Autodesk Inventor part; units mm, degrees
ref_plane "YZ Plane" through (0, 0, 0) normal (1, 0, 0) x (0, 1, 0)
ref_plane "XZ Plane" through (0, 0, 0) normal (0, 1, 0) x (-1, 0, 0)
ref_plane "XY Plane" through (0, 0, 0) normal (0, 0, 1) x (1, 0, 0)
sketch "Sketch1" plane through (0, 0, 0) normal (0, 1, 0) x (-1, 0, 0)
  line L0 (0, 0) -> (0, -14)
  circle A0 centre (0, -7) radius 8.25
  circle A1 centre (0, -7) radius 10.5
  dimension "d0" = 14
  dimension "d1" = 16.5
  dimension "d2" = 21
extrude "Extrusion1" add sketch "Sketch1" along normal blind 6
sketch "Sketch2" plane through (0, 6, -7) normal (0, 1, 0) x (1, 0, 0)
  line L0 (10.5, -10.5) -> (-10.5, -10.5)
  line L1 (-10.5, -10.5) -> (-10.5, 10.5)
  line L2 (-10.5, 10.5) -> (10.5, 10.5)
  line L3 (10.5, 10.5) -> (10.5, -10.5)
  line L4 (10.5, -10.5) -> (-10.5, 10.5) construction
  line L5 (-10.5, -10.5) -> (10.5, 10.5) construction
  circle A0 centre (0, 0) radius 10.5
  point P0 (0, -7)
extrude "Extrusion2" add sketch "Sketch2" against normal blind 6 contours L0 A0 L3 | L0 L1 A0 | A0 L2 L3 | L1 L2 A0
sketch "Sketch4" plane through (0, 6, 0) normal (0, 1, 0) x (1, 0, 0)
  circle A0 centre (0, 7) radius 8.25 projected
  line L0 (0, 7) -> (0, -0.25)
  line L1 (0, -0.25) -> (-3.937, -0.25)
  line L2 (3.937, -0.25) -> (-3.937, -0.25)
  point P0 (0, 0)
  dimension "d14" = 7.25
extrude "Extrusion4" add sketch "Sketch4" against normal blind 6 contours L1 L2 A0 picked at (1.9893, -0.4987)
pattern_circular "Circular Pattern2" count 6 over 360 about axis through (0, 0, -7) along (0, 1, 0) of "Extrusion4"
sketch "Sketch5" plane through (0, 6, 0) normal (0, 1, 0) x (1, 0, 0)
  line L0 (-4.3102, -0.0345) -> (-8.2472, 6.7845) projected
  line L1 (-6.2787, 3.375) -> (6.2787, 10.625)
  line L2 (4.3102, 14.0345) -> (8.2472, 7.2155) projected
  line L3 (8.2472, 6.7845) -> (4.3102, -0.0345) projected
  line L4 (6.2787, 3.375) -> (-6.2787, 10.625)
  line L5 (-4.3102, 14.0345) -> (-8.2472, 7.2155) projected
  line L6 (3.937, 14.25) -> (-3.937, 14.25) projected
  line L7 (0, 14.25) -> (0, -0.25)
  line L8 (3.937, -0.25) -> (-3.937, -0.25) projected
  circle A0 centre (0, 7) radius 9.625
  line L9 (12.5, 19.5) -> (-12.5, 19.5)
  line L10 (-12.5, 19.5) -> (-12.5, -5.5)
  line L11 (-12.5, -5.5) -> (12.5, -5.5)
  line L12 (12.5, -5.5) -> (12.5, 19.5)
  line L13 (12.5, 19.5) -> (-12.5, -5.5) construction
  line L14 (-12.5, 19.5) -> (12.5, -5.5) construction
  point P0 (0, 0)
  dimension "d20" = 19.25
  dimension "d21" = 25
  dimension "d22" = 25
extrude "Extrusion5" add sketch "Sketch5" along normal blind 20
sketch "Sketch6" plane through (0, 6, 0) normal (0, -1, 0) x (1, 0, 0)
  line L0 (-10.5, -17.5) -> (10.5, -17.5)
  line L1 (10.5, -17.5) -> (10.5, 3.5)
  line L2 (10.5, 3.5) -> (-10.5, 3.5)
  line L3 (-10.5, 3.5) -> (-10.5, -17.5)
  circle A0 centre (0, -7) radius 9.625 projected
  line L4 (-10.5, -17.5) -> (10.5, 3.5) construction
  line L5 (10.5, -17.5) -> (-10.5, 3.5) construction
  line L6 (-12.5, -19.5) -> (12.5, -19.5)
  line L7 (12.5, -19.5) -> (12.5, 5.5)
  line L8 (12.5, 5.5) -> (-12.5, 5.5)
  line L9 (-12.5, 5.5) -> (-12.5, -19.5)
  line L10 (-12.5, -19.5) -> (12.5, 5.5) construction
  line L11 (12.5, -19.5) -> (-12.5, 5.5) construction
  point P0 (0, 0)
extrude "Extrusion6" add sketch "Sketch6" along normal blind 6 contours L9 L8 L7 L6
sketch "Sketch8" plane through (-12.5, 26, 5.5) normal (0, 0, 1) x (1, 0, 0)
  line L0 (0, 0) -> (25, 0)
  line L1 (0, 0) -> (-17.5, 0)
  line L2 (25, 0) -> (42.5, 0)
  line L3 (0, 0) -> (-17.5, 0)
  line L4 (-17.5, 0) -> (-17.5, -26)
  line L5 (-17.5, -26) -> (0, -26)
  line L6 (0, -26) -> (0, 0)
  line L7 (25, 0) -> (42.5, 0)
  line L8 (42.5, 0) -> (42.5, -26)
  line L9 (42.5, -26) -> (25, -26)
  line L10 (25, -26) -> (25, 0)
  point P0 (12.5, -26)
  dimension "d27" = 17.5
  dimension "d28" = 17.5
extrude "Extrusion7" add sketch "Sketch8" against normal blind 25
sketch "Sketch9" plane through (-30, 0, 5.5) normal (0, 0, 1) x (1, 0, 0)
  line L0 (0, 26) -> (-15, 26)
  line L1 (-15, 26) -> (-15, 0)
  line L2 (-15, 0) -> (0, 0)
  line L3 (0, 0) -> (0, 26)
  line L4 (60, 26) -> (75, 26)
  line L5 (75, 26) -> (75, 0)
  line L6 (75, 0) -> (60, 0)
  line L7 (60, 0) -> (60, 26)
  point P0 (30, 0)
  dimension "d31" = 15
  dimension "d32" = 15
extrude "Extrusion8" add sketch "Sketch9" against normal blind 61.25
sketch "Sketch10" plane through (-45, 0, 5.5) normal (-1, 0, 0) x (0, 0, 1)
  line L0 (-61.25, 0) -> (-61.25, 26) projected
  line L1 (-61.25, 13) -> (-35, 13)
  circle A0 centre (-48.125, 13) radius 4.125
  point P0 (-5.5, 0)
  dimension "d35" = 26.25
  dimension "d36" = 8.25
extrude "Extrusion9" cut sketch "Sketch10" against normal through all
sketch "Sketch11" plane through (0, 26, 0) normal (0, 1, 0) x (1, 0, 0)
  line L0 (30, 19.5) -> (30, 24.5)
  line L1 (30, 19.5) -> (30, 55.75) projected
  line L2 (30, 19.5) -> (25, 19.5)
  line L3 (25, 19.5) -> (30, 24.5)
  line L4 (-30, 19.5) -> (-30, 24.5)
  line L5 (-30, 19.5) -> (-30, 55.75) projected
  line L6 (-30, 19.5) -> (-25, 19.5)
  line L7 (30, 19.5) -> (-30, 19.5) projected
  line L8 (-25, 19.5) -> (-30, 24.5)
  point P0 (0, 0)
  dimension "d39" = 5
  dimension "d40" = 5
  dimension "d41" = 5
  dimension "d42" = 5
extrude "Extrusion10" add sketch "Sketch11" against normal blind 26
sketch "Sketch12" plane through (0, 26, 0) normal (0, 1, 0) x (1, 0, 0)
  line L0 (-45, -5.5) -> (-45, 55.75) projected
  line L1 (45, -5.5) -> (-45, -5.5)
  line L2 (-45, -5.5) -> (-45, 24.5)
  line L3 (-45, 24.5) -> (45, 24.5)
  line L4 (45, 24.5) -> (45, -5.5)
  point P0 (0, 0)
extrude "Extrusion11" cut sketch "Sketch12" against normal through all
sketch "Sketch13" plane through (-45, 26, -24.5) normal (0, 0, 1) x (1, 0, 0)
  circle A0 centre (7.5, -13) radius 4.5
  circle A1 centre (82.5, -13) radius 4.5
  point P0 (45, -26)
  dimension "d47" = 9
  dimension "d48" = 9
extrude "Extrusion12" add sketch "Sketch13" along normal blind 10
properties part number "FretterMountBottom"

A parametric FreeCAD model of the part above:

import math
import FreeCAD as App
import Part
import Sketcher
from FreeCAD import Vector
Q = App.Units.Quantity


def add_polygon(sketch, points):
    """Adds a closed chain of lines whose ends are joined by coincident constraints."""
    first, n = sketch.GeometryCount, len(points)
    for a, b in zip(points, points[1:] + points[:1]):
        sketch.addGeometry(Part.LineSegment(App.Vector(*a, 0), App.Vector(*b, 0)), False)
    for i in range(n):
        sketch.addConstraint(Sketcher.Constraint("Coincident", first + i, 2, first + (i + 1) % n, 1))

doc = App.newDocument("Part")
body = doc.addObject("PartDesign::Body", "Body")
body.AllowCompound = True

# Sketch on XZ plane
sketch1 = body.newObject("Sketcher::SketchObject", "Sketch")
sketch1.AttachmentSupport = (doc.getObject("XZ_Plane"), [""])
sketch1.MapMode = "FlatFace"
sketch1.addGeometry(Part.Circle(Vector(0, -7, 0), Vector(0, 0, 1), 10), False)
sketch1.addGeometry(Part.Circle(Vector(0, -7, 0), Vector(0, 0, 1), 8), False)
sketch1.addConstraint(Sketcher.Constraint("Coincident", 1, 3, 0, 3))
sketch1.addConstraint(Sketcher.Constraint("PointOnObject", 0, 3, -2))
sketch1.addConstraint(Sketcher.Constraint("Diameter", 0, Q("21 mm")))
sketch1.addConstraint(Sketcher.Constraint("Diameter", 1, Q("16.5 mm")))
sketch1.addConstraint(Sketcher.Constraint("DistanceY", 0, 3, -1, 1, Q("7 mm")))
pad1 = body.newObject("PartDesign::Pad", "Pad")
pad1.Profile = sketch1
pad1.Length = 6
pad1.Reversed = True

# Sketch on XZ plane
sketch2 = body.newObject("Sketcher::SketchObject", "Sketch001")
sketch2.AttachmentSupport = (doc.getObject("XZ_Plane"), [""])
sketch2.MapMode = "FlatFace"
sketch2.AttachmentOffset = App.Placement(Vector(0, 0, -6), App.Rotation())
sketch2.addGeometry(Part.LineSegment(Vector(0, 4, 0), Vector(10, 4, 0)), False)
sketch2.addGeometry(Part.LineSegment(Vector(10, 4, 0), Vector(10, -7, 0)), False)
sketch2.addGeometry(Part.ArcOfCircle(Part.Circle(Vector(0, -7, 0), Vector(0, 0, 1), 10), math.radians(0), math.radians(90)), False)
sketch2.addGeometry(Part.LineSegment(Vector(-10, 4, 0), Vector(0, 4, 0)), False)
sketch2.addGeometry(Part.ArcOfCircle(Part.Circle(Vector(0, -7, 0), Vector(0, 0, 1), 10), math.radians(90), math.radians(180)), False)
sketch2.addGeometry(Part.LineSegment(Vector(-10, -7, 0), Vector(-10, 4, 0)), False)
sketch2.addGeometry(Part.ArcOfCircle(Part.Circle(Vector(0, -7, 0), Vector(0, 0, 1), 10), math.radians(-90), math.radians(0)), False)
sketch2.addGeometry(Part.LineSegment(Vector(10, -7, 0), Vector(10, -18, 0)), False)
sketch2.addGeometry(Part.LineSegment(Vector(10, -18, 0), Vector(0, -18, 0)), False)
sketch2.addGeometry(Part.LineSegment(Vector(-10, -18, 0), Vector(-10, -7, 0)), False)
sketch2.addGeometry(Part.ArcOfCircle(Part.Circle(Vector(0, -7, 0), Vector(0, 0, 1), 10), math.radians(-180), math.radians(-90)), False)
sketch2.addGeometry(Part.LineSegment(Vector(0, -18, 0), Vector(-10, -18, 0)), False)
sketch2.addConstraint(Sketcher.Constraint("Coincident", 0, 2, 1, 1))
sketch2.addConstraint(Sketcher.Constraint("Tangent", 1, 2, 2, 1))
sketch2.addConstraint(Sketcher.Constraint("Tangent", 2, 2, 0, 1))
sketch2.addConstraint(Sketcher.Constraint("Tangent", 3, 2, 4, 1))
sketch2.addConstraint(Sketcher.Constraint("Tangent", 4, 2, 5, 1))
sketch2.addConstraint(Sketcher.Constraint("Coincident", 5, 2, 3, 1))
sketch2.addConstraint(Sketcher.Constraint("Tangent", 6, 2, 7, 1))
sketch2.addConstraint(Sketcher.Constraint("Coincident", 7, 2, 8, 1))
sketch2.addConstraint(Sketcher.Constraint("Tangent", 8, 2, 6, 1))
sketch2.addConstraint(Sketcher.Constraint("Tangent", 9, 2, 10, 1))
sketch2.addConstraint(Sketcher.Constraint("Tangent", 10, 2, 11, 1))
sketch2.addConstraint(Sketcher.Constraint("Coincident", 11, 2, 9, 1))
sketch2.addConstraint(Sketcher.Constraint("Horizontal", 0))
sketch2.addConstraint(Sketcher.Constraint("Vertical", 1))
sketch2.addConstraint(Sketcher.Constraint("Horizontal", 3))
sketch2.addConstraint(Sketcher.Constraint("Vertical", 5))
sketch2.addConstraint(Sketcher.Constraint("Vertical", 7))
sketch2.addConstraint(Sketcher.Constraint("Horizontal", 8))
sketch2.addConstraint(Sketcher.Constraint("Vertical", 9))
sketch2.addConstraint(Sketcher.Constraint("Horizontal", 11))
sketch2.addConstraint(Sketcher.Constraint("Coincident", 4, 3, 2, 3))
sketch2.addConstraint(Sketcher.Constraint("Coincident", 6, 3, 2, 3))
sketch2.addConstraint(Sketcher.Constraint("Coincident", 10, 3, 2, 3))
sketch2.addConstraint(Sketcher.Constraint("Equal", 2, 4))
sketch2.addConstraint(Sketcher.Constraint("Equal", 4, 6))
sketch2.addConstraint(Sketcher.Constraint("Equal", 6, 10))
sketch2.addConstraint(Sketcher.Constraint("PointOnObject", 2, 3, -2))
sketch2.addConstraint(Sketcher.Constraint("Radius", 2, Q("10.5 mm")))
sketch2.addConstraint(Sketcher.Constraint("DistanceY", 2, 3, -1, 1, Q("7 mm")))
pad2 = body.newObject("PartDesign::Pad", "Pad001")
pad2.Profile = sketch2
pad2.Length = 6

# Sketch on XZ plane
sketch3 = body.newObject("Sketcher::SketchObject", "Sketch002")
sketch3.AttachmentSupport = (doc.getObject("XZ_Plane"), [""])
sketch3.MapMode = "FlatFace"
sketch3.AttachmentOffset = App.Placement(Vector(0, 0, -6), App.Rotation())
sketch3.addGeometry(Part.LineSegment(Vector(4, 0, 0), Vector(-4, 0, 0)), False)
sketch3.addGeometry(Part.ArcOfCircle(Part.Circle(Vector(0, -7, 0), Vector(0, 0, 1), 8), math.radians(61), math.radians(119)), False)
sketch3.addConstraint(Sketcher.Constraint("Coincident", 0, 1, 1, 1))
sketch3.addConstraint(Sketcher.Constraint("Coincident", 1, 2, 0, 2))
sketch3.addConstraint(Sketcher.Constraint("Horizontal", 0))
sketch3.addConstraint(Sketcher.Constraint("PointOnObject", 1, 3, -2))
sketch3.addConstraint(Sketcher.Constraint("Radius", 1, Q("8.25 mm")))
sketch3.addConstraint(Sketcher.Constraint("DistanceY", 1, 3, 0, 1, Q("7.25 mm")))
sketch3.addConstraint(Sketcher.Constraint("DistanceY", 1, 3, -1, 1, Q("7 mm")))
pad3 = body.newObject("PartDesign::Pad", "Pad002")
pad3.Profile = sketch3
pad3.Length = 6
doc.recompute()

datumline = body.newObject("PartDesign::Line", "DatumLine")
datumline.Placement = App.Placement(Vector(0, 0, -7), App.Rotation(Vector(0, 0, 1), Vector(0, 1, 0)))
polarpattern = body.newObject("PartDesign::PolarPattern", "PolarPattern")
polarpattern.Originals = [pad3]
polarpattern.Axis = (datumline, [""])
polarpattern.Angle = 360
polarpattern.Occurrences = 6
body.Tip = polarpattern

# Sketch on XZ plane
sketch4 = body.newObject("Sketcher::SketchObject", "Sketch003")
sketch4.AttachmentSupport = (doc.getObject("XZ_Plane"), [""])
sketch4.MapMode = "FlatFace"
sketch4.AttachmentOffset = App.Placement(Vector(0, 0, -6), App.Rotation())
add_polygon(sketch4, [(12, 6), (12, -20), (-12, -20), (-12, 6)])  # lines 0-3
sketch4.addGeometry(Part.Circle(Vector(0, -7, 0), Vector(0, 0, 1), 10), False)  # 4
sketch4.addConstraint(Sketcher.Constraint("Vertical", 0))
sketch4.addConstraint(Sketcher.Constraint("Horizontal", 1))
sketch4.addConstraint(Sketcher.Constraint("Vertical", 2))
sketch4.addConstraint(Sketcher.Constraint("Horizontal", 3))
sketch4.addConstraint(Sketcher.Constraint("PointOnObject", 4, 3, -2))
sketch4.addConstraint(Sketcher.Constraint("Equal", 3, 0))
sketch4.addConstraint(Sketcher.Constraint("Diameter", 4, Q("19.25 mm")))
sketch4.addConstraint(Sketcher.Constraint("DistanceX", 1, 2, 1, 1, Q("25 mm")))
sketch4.addConstraint(Sketcher.Constraint("DistanceY", 4, 3, -1, 1, Q("7 mm")))
sketch4.addConstraint(Sketcher.Constraint("DistanceX", -1, 1, 0, 2, Q("12.5 mm")))
sketch4.addConstraint(Sketcher.Constraint("DistanceY", 0, 2, -1, 1, Q("19.5 mm")))
pad4 = body.newObject("PartDesign::Pad", "Pad003")
pad4.Profile = sketch4
pad4.Length = 20
pad4.Reversed = True

# Sketch on XZ plane
sketch5 = body.newObject("Sketcher::SketchObject", "Sketch004")
sketch5.AttachmentSupport = (doc.getObject("XZ_Plane"), [""])
sketch5.MapMode = "FlatFace"
sketch5.AttachmentOffset = App.Placement(Vector(0, 0, -6), App.Rotation())
add_polygon(sketch5, [(-12, 6), (-12, -20), (12, -20), (12, 6)])  # lines 0-3
add_polygon(sketch5, [(10, -18), (-10, -18), (-10, 4), (10, 4)])  # lines 4-7
sketch5.addConstraint(Sketcher.Constraint("Vertical", 0))
sketch5.addConstraint(Sketcher.Constraint("Horizontal", 1))
sketch5.addConstraint(Sketcher.Constraint("Vertical", 2))
sketch5.addConstraint(Sketcher.Constraint("Horizontal", 3))
sketch5.addConstraint(Sketcher.Constraint("Horizontal", 4))
sketch5.addConstraint(Sketcher.Constraint("Vertical", 5))
sketch5.addConstraint(Sketcher.Constraint("Horizontal", 6))
sketch5.addConstraint(Sketcher.Constraint("Vertical", 7))
sketch5.addConstraint(Sketcher.Constraint("Equal", 3, 0))
sketch5.addConstraint(Sketcher.Constraint("Equal", 6, 5))
sketch5.addConstraint(Sketcher.Constraint("DistanceX", 1, 1, 1, 2, Q("25 mm")))
sketch5.addConstraint(Sketcher.Constraint("DistanceX", 4, 2, 4, 1, Q("21 mm")))
sketch5.addConstraint(Sketcher.Constraint("DistanceX", 0, 2, 4, 2, Q("2 mm")))
sketch5.addConstraint(Sketcher.Constraint("DistanceY", 0, 2, 4, 2, Q("2 mm")))
sketch5.addConstraint(Sketcher.Constraint("DistanceX", 0, 2, -1, 1, Q("12.5 mm")))
sketch5.addConstraint(Sketcher.Constraint("DistanceY", 0, 2, -1, 1, Q("19.5 mm")))
pad5 = body.newObject("PartDesign::Pad", "Pad004")
pad5.Profile = sketch5
pad5.Length = 6

# Sketch on XY plane
sketch6 = body.newObject("Sketcher::SketchObject", "Sketch005")
sketch6.AttachmentSupport = (doc.getObject("XY_Plane"), [""])
sketch6.MapMode = "FlatFace"
sketch6.AttachmentOffset = App.Placement(Vector(0, 0, 5.5), App.Rotation())
add_polygon(sketch6, [(30, 26), (12, 26), (12, 0), (30, 0)])  # lines 0-3
add_polygon(sketch6, [(-12, 0), (-12, 26), (-30, 26), (-30, 0)])  # lines 4-7
sketch6.addConstraint(Sketcher.Constraint("Horizontal", 0))
sketch6.addConstraint(Sketcher.Constraint("Vertical", 1))
sketch6.addConstraint(Sketcher.Constraint("Horizontal", 2))
sketch6.addConstraint(Sketcher.Constraint("Vertical", 3))
sketch6.addConstraint(Sketcher.Constraint("Vertical", 4))
sketch6.addConstraint(Sketcher.Constraint("Horizontal", 5))
sketch6.addConstraint(Sketcher.Constraint("Vertical", 6))
sketch6.addConstraint(Sketcher.Constraint("Horizontal", 7))
sketch6.addConstraint(Sketcher.Constraint("Symmetric", 2, 2, 6, 2, -1, 1))
sketch6.addConstraint(Sketcher.Constraint("Symmetric", 0, 2, 4, 2, -2))
sketch6.addConstraint(Sketcher.Constraint("PointOnObject", 1, 2, -1))
sketch6.addConstraint(Sketcher.Constraint("DistanceX", 0, 2, 0, 1, Q("17.5 mm")))
sketch6.addConstraint(Sketcher.Constraint("DistanceY", 1, 2, 1, 1, Q("26 mm")))
sketch6.addConstraint(Sketcher.Constraint("DistanceX", -1, 1, 2, 2, Q("30 mm")))
pad6 = body.newObject("PartDesign::Pad", "Pad005")
pad6.Profile = sketch6
pad6.Length = 25
pad6.Reversed = True

# Sketch on XY plane
sketch7 = body.newObject("Sketcher::SketchObject", "Sketch006")
sketch7.AttachmentSupport = (doc.getObject("XY_Plane"), [""])
sketch7.MapMode = "FlatFace"
sketch7.AttachmentOffset = App.Placement(Vector(0, 0, 5.5), App.Rotation())
add_polygon(sketch7, [(-30, 0), (-30, 26), (-45, 26), (-45, 0)])  # lines 0-3
add_polygon(sketch7, [(45, 26), (30, 26), (30, 0), (45, 0)])  # lines 4-7
sketch7.addConstraint(Sketcher.Constraint("Vertical", 0))
sketch7.addConstraint(Sketcher.Constraint("Horizontal", 1))
sketch7.addConstraint(Sketcher.Constraint("Vertical", 2))
sketch7.addConstraint(Sketcher.Constraint("Horizontal", 3))
sketch7.addConstraint(Sketcher.Constraint("Horizontal", 4))
sketch7.addConstraint(Sketcher.Constraint("Vertical", 5))
sketch7.addConstraint(Sketcher.Constraint("Horizontal", 6))
sketch7.addConstraint(Sketcher.Constraint("Vertical", 7))
sketch7.addConstraint(Sketcher.Constraint("Symmetric", 3, 2, 5, 2, -1, 1))
sketch7.addConstraint(Sketcher.Constraint("Symmetric", 2, 2, 6, 2, -2))
sketch7.addConstraint(Sketcher.Constraint("Horizontal", 1, 2, 4, 2))
sketch7.addConstraint(Sketcher.Constraint("DistanceX", 1, 2, 1, 1, Q("15 mm")))
sketch7.addConstraint(Sketcher.Constraint("DistanceY", 0, 1, 0, 2, Q("26 mm")))
sketch7.addConstraint(Sketcher.Constraint("DistanceX", 0, 2, -1, 1, Q("30 mm")))
pad7 = body.newObject("PartDesign::Pad", "Pad006")
pad7.Profile = sketch7
pad7.Length = 61.25
pad7.Reversed = True

# Sketch on YZ plane
sketch8 = body.newObject("Sketcher::SketchObject", "Sketch007")
sketch8.AttachmentSupport = (doc.getObject("YZ_Plane"), [""])
sketch8.MapMode = "FlatFace"
sketch8.AttachmentOffset = App.Placement(Vector(0, 0, -45), App.Rotation())
sketch8.addGeometry(Part.Circle(Vector(13, -42.6, 0), Vector(0, 0, 1), 4.1), False)
sketch8.addConstraint(Sketcher.Constraint("Diameter", 0, Q("8.25 mm")))
sketch8.addConstraint(Sketcher.Constraint("DistanceX", -1, 1, 0, 3, Q("13 mm")))
sketch8.addConstraint(Sketcher.Constraint("DistanceY", 0, 3, -1, 1, Q("42.625 mm")))
pocket1 = body.newObject("PartDesign::Pocket", "Pocket")
pocket1.Profile = sketch8
pocket1.Type = "ThroughAll"
pocket1.Reversed = True

# Sketch on XZ plane
sketch9 = body.newObject("Sketcher::SketchObject", "Sketch008")
sketch9.AttachmentSupport = (doc.getObject("XZ_Plane"), [""])
sketch9.MapMode = "FlatFace"
sketch9.AttachmentOffset = App.Placement(Vector(0, 0, -26), App.Rotation())
add_polygon(sketch9, [(25, -20), (30, -20), (30, -24)])  # lines 0-2
add_polygon(sketch9, [(-30, -20), (-25, -20), (-30, -24)])  # lines 3-5
sketch9.addConstraint(Sketcher.Constraint("Horizontal", 0))
sketch9.addConstraint(Sketcher.Constraint("Vertical", 1))
sketch9.addConstraint(Sketcher.Constraint("Horizontal", 3))
sketch9.addConstraint(Sketcher.Constraint("Vertical", 5))
sketch9.addConstraint(Sketcher.Constraint("Symmetric", 2, 2, 3, 2, -2))
sketch9.addConstraint(Sketcher.Constraint("Symmetric", 1, 2, 4, 2, -2))
sketch9.addConstraint(Sketcher.Constraint("Perpendicular", 2, 4))
sketch9.addConstraint(Sketcher.Constraint("DistanceX", 0, 1, 0, 2, Q("5 mm")))
sketch9.addConstraint(Sketcher.Constraint("DistanceX", -1, 1, 0, 2, Q("30 mm")))
sketch9.addConstraint(Sketcher.Constraint("DistanceY", 0, 2, -1, 1, Q("19.5 mm")))
pad8 = body.newObject("PartDesign::Pad", "Pad007")
pad8.Profile = sketch9
pad8.Length = 26

# Sketch on XZ plane
sketch10 = body.newObject("Sketcher::SketchObject", "Sketch009")
sketch10.AttachmentSupport = (doc.getObject("XZ_Plane"), [""])
sketch10.MapMode = "FlatFace"
sketch10.AttachmentOffset = App.Placement(Vector(0, 0, -26), App.Rotation())
add_polygon(sketch10, [(-45, -24), (-45, 6), (45, 6), (45, -24)])  # lines 0-3
sketch10.addConstraint(Sketcher.Constraint("Vertical", 0))
sketch10.addConstraint(Sketcher.Constraint("Horizontal", 1))
sketch10.addConstraint(Sketcher.Constraint("Vertical", 2))
sketch10.addConstraint(Sketcher.Constraint("Horizontal", 3))
sketch10.addConstraint(Sketcher.Constraint("DistanceX", 1, 1, 1, 2, Q("90 mm")))
sketch10.addConstraint(Sketcher.Constraint("DistanceY", 0, 1, 0, 2, Q("30 mm")))
sketch10.addConstraint(Sketcher.Constraint("DistanceX", 0, 2, -1, 1, Q("45 mm")))
sketch10.addConstraint(Sketcher.Constraint("DistanceY", -1, 1, 0, 2, Q("5.5 mm")))
pocket2 = body.newObject("PartDesign::Pocket", "Pocket001")
pocket2.Profile = sketch10
pocket2.Type = "ThroughAll"
pocket2.Reversed = True

# Sketch on XY plane
sketch11 = body.newObject("Sketcher::SketchObject", "Sketch010")
sketch11.AttachmentSupport = (doc.getObject("XY_Plane"), [""])
sketch11.MapMode = "FlatFace"
sketch11.AttachmentOffset = App.Placement(Vector(0, 0, -24.5), App.Rotation())
sketch11.addGeometry(Part.Circle(Vector(-37.5, 13, 0), Vector(0, 0, 1), 4.5), False)
sketch11.addGeometry(Part.Circle(Vector(37.5, 13, 0), Vector(0, 0, 1), 4.5), False)
sketch11.addConstraint(Sketcher.Constraint("Equal", 0, 1))
sketch11.addConstraint(Sketcher.Constraint("Symmetric", 0, 3, 1, 3, -2))
sketch11.addConstraint(Sketcher.Constraint("Diameter", 0, Q("9 mm")))
sketch11.addConstraint(Sketcher.Constraint("DistanceY", -1, 1, 0, 3, Q("13 mm")))
sketch11.addConstraint(Sketcher.Constraint("DistanceX", 0, 3, 1, 3, Q("75 mm")))
pad9 = body.newObject("PartDesign::Pad", "Pad008")
pad9.Profile = sketch11
pad9.Length = 10

doc.recompute()
